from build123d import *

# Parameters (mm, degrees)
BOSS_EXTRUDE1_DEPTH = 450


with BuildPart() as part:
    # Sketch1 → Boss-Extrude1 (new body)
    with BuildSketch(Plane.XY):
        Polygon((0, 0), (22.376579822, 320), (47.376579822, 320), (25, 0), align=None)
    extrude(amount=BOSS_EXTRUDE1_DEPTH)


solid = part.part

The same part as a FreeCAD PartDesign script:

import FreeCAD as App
import Part
import Sketcher

V = App.Vector
Q = App.Units.Quantity

doc = App.newDocument("Part")
body = doc.addObject("PartDesign::Body", "Body")

# Sketch on XY plane
sketch1 = body.newObject("Sketcher::SketchObject", "Sketch")
sketch1.AttachmentSupport = (doc.getObject("XY_Plane"), [""])
sketch1.MapMode = "FlatFace"
sketch1.addGeometry([
    Part.LineSegment(V(22, 320, 0), V(0, 0, 0)),
    Part.LineSegment(V(0, 0, 0), V(25, 0, 0)),
    Part.LineSegment(V(25, 0, 0), V(47, 320, 0)),
    Part.LineSegment(V(47, 320, 0), V(22, 320, 0)),
], False)
sketch1.addConstraint([
    Sketcher.Constraint("Coincident", 0, 2, 1, 1),
    Sketcher.Constraint("Coincident", 1, 2, 2, 1),
    Sketcher.Constraint("Coincident", 2, 2, 3, 1),
    Sketcher.Constraint("Coincident", 3, 2, 0, 1),
    Sketcher.Constraint("Horizontal", 1),
    Sketcher.Constraint("Horizontal", 3),
    Sketcher.Constraint("Coincident", 0, 2, -1, 1),
    Sketcher.Constraint("Parallel", 0, 2),
    Sketcher.Constraint("DistanceX", 1, 1, 1, 2, Q("25 mm")),
    Sketcher.Constraint("Angle", 0, Q("-94 deg")),
    Sketcher.Constraint("DistanceY", -1, 1, 2, 2, Q("320 mm")),
])
pad1 = body.newObject("PartDesign::Pad", "Pad")
pad1.Profile = sketch1
pad1.Length = 450

doc.recompute()
